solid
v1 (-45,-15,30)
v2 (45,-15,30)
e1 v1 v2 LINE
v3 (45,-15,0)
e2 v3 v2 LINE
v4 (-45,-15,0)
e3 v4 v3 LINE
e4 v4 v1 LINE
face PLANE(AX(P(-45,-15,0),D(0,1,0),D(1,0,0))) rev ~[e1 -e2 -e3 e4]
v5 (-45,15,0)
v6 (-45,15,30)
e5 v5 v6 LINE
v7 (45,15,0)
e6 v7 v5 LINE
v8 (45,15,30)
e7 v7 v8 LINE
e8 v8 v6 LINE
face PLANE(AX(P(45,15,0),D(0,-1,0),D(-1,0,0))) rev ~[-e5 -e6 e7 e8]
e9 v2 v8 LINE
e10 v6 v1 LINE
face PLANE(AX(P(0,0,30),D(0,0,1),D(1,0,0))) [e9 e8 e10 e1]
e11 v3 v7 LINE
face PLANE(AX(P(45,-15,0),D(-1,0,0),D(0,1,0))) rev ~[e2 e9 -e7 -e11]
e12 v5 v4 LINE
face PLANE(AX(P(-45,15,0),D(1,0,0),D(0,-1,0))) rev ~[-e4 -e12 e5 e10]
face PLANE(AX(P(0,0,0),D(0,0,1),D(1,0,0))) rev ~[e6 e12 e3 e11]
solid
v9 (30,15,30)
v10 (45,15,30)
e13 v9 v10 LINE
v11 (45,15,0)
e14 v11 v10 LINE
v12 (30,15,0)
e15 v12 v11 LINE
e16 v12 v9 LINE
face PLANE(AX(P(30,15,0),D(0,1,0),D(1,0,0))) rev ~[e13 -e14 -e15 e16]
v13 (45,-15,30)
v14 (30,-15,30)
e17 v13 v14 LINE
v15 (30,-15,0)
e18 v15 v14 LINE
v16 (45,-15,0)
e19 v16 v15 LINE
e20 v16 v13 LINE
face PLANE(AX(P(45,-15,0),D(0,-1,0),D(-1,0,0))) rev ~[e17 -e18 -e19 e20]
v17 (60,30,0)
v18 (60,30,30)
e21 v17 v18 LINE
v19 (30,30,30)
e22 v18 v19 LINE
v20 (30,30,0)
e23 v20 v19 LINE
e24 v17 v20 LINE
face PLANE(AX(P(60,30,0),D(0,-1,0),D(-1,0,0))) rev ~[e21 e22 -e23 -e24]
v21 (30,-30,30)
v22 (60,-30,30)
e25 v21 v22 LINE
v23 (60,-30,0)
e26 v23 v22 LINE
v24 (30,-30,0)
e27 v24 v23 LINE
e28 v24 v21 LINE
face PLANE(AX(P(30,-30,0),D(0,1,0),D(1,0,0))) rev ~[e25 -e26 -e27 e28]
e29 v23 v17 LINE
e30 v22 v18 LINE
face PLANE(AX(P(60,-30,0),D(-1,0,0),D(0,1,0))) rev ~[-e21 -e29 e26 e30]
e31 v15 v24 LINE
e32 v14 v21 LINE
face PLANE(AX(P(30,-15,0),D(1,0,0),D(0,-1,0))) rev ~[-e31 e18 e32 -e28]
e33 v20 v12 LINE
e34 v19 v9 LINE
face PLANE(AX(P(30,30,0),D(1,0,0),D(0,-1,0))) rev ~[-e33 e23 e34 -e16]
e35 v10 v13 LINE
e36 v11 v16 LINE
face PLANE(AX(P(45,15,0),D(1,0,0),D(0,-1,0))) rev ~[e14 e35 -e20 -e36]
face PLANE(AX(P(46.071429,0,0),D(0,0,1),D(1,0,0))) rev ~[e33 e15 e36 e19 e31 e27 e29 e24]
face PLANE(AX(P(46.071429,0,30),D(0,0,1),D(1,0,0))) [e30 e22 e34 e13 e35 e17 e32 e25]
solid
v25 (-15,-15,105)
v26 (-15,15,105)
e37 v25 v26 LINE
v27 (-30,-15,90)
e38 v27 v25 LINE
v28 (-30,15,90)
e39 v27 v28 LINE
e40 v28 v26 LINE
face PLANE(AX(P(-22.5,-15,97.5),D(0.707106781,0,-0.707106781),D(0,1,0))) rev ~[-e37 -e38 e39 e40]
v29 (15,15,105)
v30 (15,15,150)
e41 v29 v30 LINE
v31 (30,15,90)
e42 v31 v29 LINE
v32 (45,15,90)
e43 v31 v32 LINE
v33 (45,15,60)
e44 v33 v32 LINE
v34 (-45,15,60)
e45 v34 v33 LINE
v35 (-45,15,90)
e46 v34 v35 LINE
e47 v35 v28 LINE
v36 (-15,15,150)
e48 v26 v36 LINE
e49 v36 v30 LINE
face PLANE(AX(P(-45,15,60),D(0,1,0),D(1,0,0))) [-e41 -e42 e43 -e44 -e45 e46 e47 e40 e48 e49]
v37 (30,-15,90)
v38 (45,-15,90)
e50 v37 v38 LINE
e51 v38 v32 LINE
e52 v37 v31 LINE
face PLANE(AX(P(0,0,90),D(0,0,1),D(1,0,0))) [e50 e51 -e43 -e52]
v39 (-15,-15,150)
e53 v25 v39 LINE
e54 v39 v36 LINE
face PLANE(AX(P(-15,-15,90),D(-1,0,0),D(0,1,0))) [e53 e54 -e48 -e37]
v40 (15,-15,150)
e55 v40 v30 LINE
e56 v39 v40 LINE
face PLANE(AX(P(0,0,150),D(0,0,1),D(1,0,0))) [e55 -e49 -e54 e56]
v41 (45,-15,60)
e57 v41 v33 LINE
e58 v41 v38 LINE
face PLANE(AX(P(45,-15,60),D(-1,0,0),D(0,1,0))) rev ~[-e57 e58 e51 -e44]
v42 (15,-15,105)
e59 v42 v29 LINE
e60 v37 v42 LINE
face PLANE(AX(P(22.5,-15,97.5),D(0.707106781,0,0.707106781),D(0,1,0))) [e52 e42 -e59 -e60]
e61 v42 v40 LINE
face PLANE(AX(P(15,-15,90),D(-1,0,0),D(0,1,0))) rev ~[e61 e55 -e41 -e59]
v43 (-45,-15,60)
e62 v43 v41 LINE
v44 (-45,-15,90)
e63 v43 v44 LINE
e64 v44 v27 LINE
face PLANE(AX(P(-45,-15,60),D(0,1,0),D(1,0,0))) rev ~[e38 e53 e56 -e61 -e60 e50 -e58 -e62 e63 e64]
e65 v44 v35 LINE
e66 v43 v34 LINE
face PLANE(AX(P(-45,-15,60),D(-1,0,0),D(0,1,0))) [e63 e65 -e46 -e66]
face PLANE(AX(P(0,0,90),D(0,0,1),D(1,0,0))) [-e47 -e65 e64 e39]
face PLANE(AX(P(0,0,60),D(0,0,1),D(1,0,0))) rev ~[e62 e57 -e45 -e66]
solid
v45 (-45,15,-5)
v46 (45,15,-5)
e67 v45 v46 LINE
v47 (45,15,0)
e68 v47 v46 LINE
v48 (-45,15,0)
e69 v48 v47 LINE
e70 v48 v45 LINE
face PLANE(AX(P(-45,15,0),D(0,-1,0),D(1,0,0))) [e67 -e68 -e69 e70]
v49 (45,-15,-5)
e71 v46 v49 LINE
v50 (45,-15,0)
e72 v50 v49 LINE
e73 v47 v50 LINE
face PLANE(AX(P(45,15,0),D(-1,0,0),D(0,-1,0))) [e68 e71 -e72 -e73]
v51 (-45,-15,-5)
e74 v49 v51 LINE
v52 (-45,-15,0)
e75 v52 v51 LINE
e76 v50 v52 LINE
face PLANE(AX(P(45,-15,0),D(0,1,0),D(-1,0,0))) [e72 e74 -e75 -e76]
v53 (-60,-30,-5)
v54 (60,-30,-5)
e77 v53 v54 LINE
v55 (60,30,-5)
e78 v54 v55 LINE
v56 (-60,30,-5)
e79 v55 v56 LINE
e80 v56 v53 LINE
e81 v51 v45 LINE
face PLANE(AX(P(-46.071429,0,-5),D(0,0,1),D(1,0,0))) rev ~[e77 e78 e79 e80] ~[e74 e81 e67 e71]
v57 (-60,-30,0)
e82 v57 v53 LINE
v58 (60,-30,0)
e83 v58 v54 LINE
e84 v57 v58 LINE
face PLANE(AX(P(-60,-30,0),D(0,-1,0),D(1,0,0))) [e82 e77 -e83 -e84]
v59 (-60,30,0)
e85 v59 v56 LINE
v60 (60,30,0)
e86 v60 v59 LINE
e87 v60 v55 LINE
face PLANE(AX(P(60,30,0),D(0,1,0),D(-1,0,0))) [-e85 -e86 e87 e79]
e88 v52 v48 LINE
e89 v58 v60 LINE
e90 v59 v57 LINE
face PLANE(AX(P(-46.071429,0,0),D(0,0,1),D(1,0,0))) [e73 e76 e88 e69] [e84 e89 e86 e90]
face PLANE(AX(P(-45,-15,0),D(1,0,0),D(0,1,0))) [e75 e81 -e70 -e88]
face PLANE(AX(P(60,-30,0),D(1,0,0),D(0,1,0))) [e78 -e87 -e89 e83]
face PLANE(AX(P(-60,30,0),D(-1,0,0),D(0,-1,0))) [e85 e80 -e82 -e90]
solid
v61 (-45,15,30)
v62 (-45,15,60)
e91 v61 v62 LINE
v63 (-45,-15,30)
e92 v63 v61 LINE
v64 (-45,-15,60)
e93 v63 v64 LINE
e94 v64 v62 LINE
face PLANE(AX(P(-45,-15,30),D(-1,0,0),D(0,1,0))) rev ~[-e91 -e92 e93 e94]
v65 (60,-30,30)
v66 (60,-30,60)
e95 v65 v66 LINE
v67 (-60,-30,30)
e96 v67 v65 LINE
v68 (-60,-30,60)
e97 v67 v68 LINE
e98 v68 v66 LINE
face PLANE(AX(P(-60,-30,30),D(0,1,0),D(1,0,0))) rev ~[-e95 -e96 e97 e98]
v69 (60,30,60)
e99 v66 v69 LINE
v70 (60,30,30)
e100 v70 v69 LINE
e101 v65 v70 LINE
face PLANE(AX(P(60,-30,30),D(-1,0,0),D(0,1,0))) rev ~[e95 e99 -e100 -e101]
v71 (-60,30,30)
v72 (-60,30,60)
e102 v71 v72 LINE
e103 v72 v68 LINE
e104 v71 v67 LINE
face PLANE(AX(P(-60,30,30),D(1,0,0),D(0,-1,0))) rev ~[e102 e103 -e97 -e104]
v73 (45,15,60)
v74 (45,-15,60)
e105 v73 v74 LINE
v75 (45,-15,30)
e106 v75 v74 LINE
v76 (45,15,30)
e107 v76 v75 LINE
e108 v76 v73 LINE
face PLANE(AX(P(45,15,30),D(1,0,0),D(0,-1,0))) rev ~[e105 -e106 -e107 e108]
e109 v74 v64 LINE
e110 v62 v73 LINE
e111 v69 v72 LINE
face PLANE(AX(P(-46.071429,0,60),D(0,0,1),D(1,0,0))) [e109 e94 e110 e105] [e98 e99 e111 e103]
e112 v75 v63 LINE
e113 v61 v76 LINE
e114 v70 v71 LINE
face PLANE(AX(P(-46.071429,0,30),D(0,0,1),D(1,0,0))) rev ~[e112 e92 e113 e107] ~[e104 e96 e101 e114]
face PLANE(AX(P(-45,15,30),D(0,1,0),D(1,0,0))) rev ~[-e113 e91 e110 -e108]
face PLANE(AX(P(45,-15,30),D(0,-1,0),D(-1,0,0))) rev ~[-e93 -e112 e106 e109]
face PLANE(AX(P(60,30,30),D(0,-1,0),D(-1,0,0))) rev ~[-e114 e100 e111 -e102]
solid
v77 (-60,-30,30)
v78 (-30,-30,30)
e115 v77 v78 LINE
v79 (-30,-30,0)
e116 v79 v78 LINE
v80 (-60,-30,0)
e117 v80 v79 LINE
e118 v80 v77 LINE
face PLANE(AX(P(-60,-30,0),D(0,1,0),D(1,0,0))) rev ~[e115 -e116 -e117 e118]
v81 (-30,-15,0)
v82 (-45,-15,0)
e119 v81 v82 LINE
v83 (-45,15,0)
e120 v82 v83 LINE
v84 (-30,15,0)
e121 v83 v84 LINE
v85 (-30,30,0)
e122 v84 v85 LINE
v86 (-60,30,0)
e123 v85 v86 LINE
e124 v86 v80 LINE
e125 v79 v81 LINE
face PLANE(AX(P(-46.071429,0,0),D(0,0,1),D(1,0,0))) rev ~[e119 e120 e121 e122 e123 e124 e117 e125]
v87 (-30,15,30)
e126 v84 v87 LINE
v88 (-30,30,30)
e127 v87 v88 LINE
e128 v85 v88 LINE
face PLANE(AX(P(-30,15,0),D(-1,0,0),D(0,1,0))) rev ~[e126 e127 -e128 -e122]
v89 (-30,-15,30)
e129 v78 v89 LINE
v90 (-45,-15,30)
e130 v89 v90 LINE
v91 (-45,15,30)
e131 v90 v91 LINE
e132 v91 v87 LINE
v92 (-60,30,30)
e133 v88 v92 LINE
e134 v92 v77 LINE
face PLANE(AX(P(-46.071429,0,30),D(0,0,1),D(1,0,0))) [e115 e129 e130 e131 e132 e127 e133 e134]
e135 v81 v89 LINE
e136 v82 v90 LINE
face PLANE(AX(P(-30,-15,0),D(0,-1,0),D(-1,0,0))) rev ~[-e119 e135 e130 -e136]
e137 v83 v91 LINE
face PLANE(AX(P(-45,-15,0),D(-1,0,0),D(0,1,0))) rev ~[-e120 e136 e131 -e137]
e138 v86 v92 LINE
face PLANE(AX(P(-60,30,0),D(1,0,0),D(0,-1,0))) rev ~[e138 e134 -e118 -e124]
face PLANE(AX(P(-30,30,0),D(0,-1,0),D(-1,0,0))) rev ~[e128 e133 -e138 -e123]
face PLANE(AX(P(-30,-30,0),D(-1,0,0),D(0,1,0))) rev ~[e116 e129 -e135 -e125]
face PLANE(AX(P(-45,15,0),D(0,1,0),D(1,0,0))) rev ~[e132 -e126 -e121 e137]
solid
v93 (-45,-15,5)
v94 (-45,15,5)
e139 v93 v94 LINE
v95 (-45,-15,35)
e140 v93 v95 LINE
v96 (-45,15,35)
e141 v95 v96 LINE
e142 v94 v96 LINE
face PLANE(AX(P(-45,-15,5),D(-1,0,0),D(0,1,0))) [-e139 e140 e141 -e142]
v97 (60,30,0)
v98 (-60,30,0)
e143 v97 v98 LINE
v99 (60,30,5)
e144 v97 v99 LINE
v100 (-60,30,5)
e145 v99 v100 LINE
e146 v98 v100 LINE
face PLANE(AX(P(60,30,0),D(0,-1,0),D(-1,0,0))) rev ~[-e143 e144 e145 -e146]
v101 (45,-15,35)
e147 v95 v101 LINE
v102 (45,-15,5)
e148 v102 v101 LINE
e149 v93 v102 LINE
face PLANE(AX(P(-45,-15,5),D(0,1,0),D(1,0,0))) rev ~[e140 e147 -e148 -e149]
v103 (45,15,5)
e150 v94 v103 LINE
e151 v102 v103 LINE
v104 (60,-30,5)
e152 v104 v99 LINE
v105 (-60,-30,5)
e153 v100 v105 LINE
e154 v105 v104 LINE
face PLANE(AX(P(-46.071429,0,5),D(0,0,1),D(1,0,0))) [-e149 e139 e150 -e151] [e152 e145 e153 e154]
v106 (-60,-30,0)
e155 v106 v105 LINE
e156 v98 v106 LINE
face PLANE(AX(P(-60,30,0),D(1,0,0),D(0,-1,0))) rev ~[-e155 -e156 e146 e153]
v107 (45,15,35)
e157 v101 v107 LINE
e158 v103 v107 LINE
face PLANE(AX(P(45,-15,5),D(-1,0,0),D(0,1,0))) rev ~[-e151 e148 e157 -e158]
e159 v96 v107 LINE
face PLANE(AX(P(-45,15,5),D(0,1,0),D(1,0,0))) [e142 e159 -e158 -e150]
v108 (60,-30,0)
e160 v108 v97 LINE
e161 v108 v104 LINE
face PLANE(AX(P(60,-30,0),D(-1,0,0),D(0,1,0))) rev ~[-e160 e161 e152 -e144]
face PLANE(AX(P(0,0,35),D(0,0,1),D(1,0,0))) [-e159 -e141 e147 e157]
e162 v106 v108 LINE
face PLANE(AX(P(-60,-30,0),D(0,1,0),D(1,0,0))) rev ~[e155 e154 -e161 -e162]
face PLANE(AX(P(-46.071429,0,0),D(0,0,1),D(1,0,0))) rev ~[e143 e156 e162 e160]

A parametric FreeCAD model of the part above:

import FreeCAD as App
import Part
import Sketcher

V = App.Vector
Q = App.Units.Quantity


def edges_at(feature, points):
    """Names of the edges that pass closest to the given points."""
    edges = feature.Shape.Edges
    near = lambda p: min(range(len(edges)), key=lambda i: edges[i].distToShape(Part.Vertex(*p))[0])
    return sorted({f"Edge{near(p) + 1}" for p in points})


def add_polygon(sketch, points):
    """Adds a closed chain of lines whose ends are joined by coincident constraints."""
    first, n = sketch.GeometryCount, len(points)
    for a, b in zip(points, points[1:] + points[:1]):
        sketch.addGeometry(Part.LineSegment(App.Vector(*a, 0), App.Vector(*b, 0)), False)
    for i in range(n):
        sketch.addConstraint(Sketcher.Constraint("Coincident", first + i, 2, first + (i + 1) % n, 1))

doc = App.newDocument("Part")
body = doc.addObject("PartDesign::Body", "Body")

# Sketch on XY plane
sketch1 = doc.addObject("Sketcher::SketchObject", "Sketch")
body.addObject(sketch1)
sketch1.AttachmentSupport = (doc.XY_Plane, [""])
sketch1.MapMode = "FlatFace"
add_polygon(sketch1, [(45, -15), (45, 15), (-45, 15), (-45, -15)])  # lines 0-3
sketch1.addConstraint([
    Sketcher.Constraint("Vertical", 0),
    Sketcher.Constraint("Horizontal", 1),
    Sketcher.Constraint("Vertical", 2),
    Sketcher.Constraint("Horizontal", 3),
    Sketcher.Constraint("Symmetric", 0, 2, 2, 2, -1, 1),
    Sketcher.Constraint("DistanceX", 1, 2, 1, 1, Q("90 mm")),
    Sketcher.Constraint("DistanceY", 0, 1, 0, 2, Q("30 mm")),
])
pad1 = doc.addObject("PartDesign::Pad", "Pad")
body.addObject(pad1)
pad1.Profile = sketch1
pad1.Length = 30
body2 = doc.addObject("PartDesign::Body", "Body001")

# Sketch on XY plane
sketch2 = doc.addObject("Sketcher::SketchObject", "Sketch001")
body2.addObject(sketch2)
sketch2.AttachmentSupport = (doc.getObject("XY_Plane001"), [""])
sketch2.MapMode = "FlatFace"
add_polygon(sketch2, [(-60, 30), (-60, -30), (60, -30), (60, 30)])  # lines 0-3
add_polygon(sketch2, [(-45, 15), (45, 15), (45, -15), (-45, -15)])  # lines 4-7
sketch2.addConstraint([
    Sketcher.Constraint("Vertical", 0),
    Sketcher.Constraint("Horizontal", 1),
    Sketcher.Constraint("Vertical", 2),
    Sketcher.Constraint("Horizontal", 3),
    Sketcher.Constraint("Horizontal", 4),
    Sketcher.Constraint("Vertical", 5),
    Sketcher.Constraint("Horizontal", 6),
    Sketcher.Constraint("Vertical", 7),
    Sketcher.Constraint("Symmetric", 0, 2, 2, 2, -1, 1),
    Sketcher.Constraint("Symmetric", 4, 2, 6, 2, -1, 1),
    Sketcher.Constraint("DistanceX", 1, 1, 1, 2, Q("120 mm")),
    Sketcher.Constraint("DistanceX", 4, 1, 4, 2, Q("90 mm")),
    Sketcher.Constraint("DistanceY", 0, 2, 0, 1, Q("60 mm")),
    Sketcher.Constraint("DistanceY", 5, 2, 5, 1, Q("30 mm")),
])
pad2 = doc.addObject("PartDesign::Pad", "Pad001")
body2.addObject(pad2)
pad2.Profile = sketch2
pad2.Length = 5
pad2.Reversed = True
body3 = doc.addObject("PartDesign::Body", "Body002")

# Sketch on XY plane
sketch3 = doc.addObject("Sketcher::SketchObject", "Sketch002")
body3.addObject(sketch3)
sketch3.AttachmentSupport = (doc.getObject("XY_Plane002"), [""])
sketch3.MapMode = "FlatFace"
add_polygon(sketch3, [(30, 15), (45, 15), (45, -15), (30, -15), (30, -30), (60, -30), (60, 30), (30, 30)])  # lines 0-7
sketch3.addConstraint([
    Sketcher.Constraint("Horizontal", 0),
    Sketcher.Constraint("Vertical", 1),
    Sketcher.Constraint("Horizontal", 2),
    Sketcher.Constraint("Vertical", 3),
    Sketcher.Constraint("Horizontal", 4),
    Sketcher.Constraint("Vertical", 5),
    Sketcher.Constraint("Horizontal", 6),
    Sketcher.Constraint("Vertical", 7),
    Sketcher.Constraint("Symmetric", 3, 2, 6, 2, -1),
    Sketcher.Constraint("Equal", 6, 1),
    Sketcher.Constraint("Equal", 2, 3),
    Sketcher.Constraint("Equal", 3, 7),
    Sketcher.Constraint("DistanceX", 0, 1, 0, 2, Q("15 mm")),
    Sketcher.Constraint("DistanceX", 4, 1, 4, 2, Q("30 mm")),
    Sketcher.Constraint("DistanceX", -1, 1, 0, 2, Q("45 mm")),
])
pad3 = doc.addObject("PartDesign::Pad", "Pad002")
body3.addObject(pad3)
pad3.Profile = sketch3
pad3.Length = 30
body4 = doc.addObject("PartDesign::Body", "Body003")

# Sketch on XY plane
sketch4 = doc.addObject("Sketcher::SketchObject", "Sketch003")
body4.addObject(sketch4)
sketch4.AttachmentSupport = (doc.getObject("XY_Plane003"), [""])
sketch4.MapMode = "FlatFace"
add_polygon(sketch4, [(-45, 15), (-30, 15), (-30, 30), (-60, 30), (-60, -30), (-30, -30), (-30, -15), (-45, -15)])  # lines 0-7
sketch4.addConstraint([
    Sketcher.Constraint("Horizontal", 0),
    Sketcher.Constraint("Vertical", 1),
    Sketcher.Constraint("Horizontal", 2),
    Sketcher.Constraint("Vertical", 3),
    Sketcher.Constraint("Horizontal", 4),
    Sketcher.Constraint("Vertical", 5),
    Sketcher.Constraint("Horizontal", 6),
    Sketcher.Constraint("Vertical", 7),
    Sketcher.Constraint("Symmetric", 1, 2, 4, 2, -1),
    Sketcher.Constraint("Equal", 6, 1),
    Sketcher.Constraint("Equal", 1, 5),
    Sketcher.Constraint("Equal", 4, 7),
    Sketcher.Constraint("DistanceX", 0, 1, 0, 2, Q("15 mm")),
    Sketcher.Constraint("DistanceX", 2, 2, 2, 1, Q("30 mm")),
    Sketcher.Constraint("DistanceX", 0, 2, -1, 1, Q("30 mm")),
])
pad4 = doc.addObject("PartDesign::Pad", "Pad003")
body4.addObject(pad4)
pad4.Profile = sketch4
pad4.Length = 30
body5 = doc.addObject("PartDesign::Body", "Body004")

# Sketch on XY plane
sketch5 = doc.addObject("Sketcher::SketchObject", "Sketch004")
body5.addObject(sketch5)
sketch5.AttachmentSupport = (doc.getObject("XY_Plane004"), [""])
sketch5.MapMode = "FlatFace"
sketch5.AttachmentOffset = App.Placement(V(0, 0, 30), App.Rotation())
add_polygon(sketch5, [(-60, 30), (-60, -30), (60, -30), (60, 30)])  # lines 0-3
add_polygon(sketch5, [(-45, -15), (-45, 15), (45, 15), (45, -15)])  # lines 4-7
sketch5.addConstraint([
    Sketcher.Constraint("Vertical", 0),
    Sketcher.Constraint("Horizontal", 1),
    Sketcher.Constraint("Vertical", 2),
    Sketcher.Constraint("Horizontal", 3),
    Sketcher.Constraint("Vertical", 4),
    Sketcher.Constraint("Horizontal", 5),
    Sketcher.Constraint("Vertical", 6),
    Sketcher.Constraint("Horizontal", 7),
    Sketcher.Constraint("Symmetric", 0, 2, 2, 2, -1, 1),
    Sketcher.Constraint("Symmetric", 4, 2, 6, 2, -1, 1),
    Sketcher.Constraint("DistanceX", 1, 1, 1, 2, Q("120 mm")),
    Sketcher.Constraint("DistanceX", 5, 1, 5, 2, Q("90 mm")),
    Sketcher.Constraint("DistanceY", 0, 2, 0, 1, Q("60 mm")),
    Sketcher.Constraint("DistanceY", 4, 1, 4, 2, Q("30 mm")),
])
pad5 = doc.addObject("PartDesign::Pad", "Pad004")
body5.addObject(pad5)
pad5.Profile = sketch5
pad5.Length = 30
body6 = doc.addObject("PartDesign::Body", "Body005")

# Sketch on XY plane
sketch6 = doc.addObject("Sketcher::SketchObject", "Sketch005")
body6.addObject(sketch6)
sketch6.AttachmentSupport = (doc.getObject("XY_Plane005"), [""])
sketch6.MapMode = "FlatFace"
sketch6.AttachmentOffset = App.Placement(V(0, 0, 60), App.Rotation())
add_polygon(sketch6, [(-45, 15), (-45, -15), (45, -15), (45, 15)])  # lines 0-3
sketch6.addConstraint([
    Sketcher.Constraint("Vertical", 0),
    Sketcher.Constraint("Horizontal", 1),
    Sketcher.Constraint("Vertical", 2),
    Sketcher.Constraint("Horizontal", 3),
    Sketcher.Constraint("Symmetric", 0, 2, 2, 2, -1, 1),
    Sketcher.Constraint("DistanceX", 1, 1, 1, 2, Q("90 mm")),
    Sketcher.Constraint("DistanceY", 0, 2, 0, 1, Q("30 mm")),
])
pad6 = doc.addObject("PartDesign::Pad", "Pad005")
body6.addObject(pad6)
pad6.Profile = sketch6
pad6.Length = 30

# Sketch on XY plane
sketch7 = doc.addObject("Sketcher::SketchObject", "Sketch006")
body6.addObject(sketch7)
sketch7.AttachmentSupport = (doc.getObject("XY_Plane005"), [""])
sketch7.MapMode = "FlatFace"
sketch7.AttachmentOffset = App.Placement(V(0, 0, 90), App.Rotation())
add_polygon(sketch7, [(-15, 15), (-15, -15), (15, -15), (15, 15)])  # lines 0-3
sketch7.addConstraint([
    Sketcher.Constraint("Vertical", 0),
    Sketcher.Constraint("Horizontal", 1),
    Sketcher.Constraint("Vertical", 2),
    Sketcher.Constraint("Horizontal", 3),
    Sketcher.Constraint("Symmetric", 0, 2, 2, 2, -1, 1),
    Sketcher.Constraint("Equal", 3, 0),
    Sketcher.Constraint("DistanceX", 1, 1, 1, 2, Q("30 mm")),
])
pad7 = doc.addObject("PartDesign::Pad", "Pad006")
body6.addObject(pad7)
pad7.Profile = sketch7
pad7.Length = 60
doc.recompute()

chamfer = doc.addObject("PartDesign::Chamfer", "Chamfer")
body6.addObject(chamfer)
chamfer.Base = (pad7, edges_at(pad7, [(15, 0, 90), (-15, 0, 90)]))
chamfer.Size = 15
body7 = doc.addObject("PartDesign::Body", "Body006")

# Sketch on XY plane
sketch8 = doc.addObject("Sketcher::SketchObject", "Sketch007")
body7.addObject(sketch8)
sketch8.AttachmentSupport = (doc.getObject("XY_Plane006"), [""])
sketch8.MapMode = "FlatFace"
add_polygon(sketch8, [(60, -30), (60, 30), (-60, 30), (-60, -30)])  # lines 0-3
sketch8.addConstraint([
    Sketcher.Constraint("Vertical", 0),
    Sketcher.Constraint("Horizontal", 1),
    Sketcher.Constraint("Vertical", 2),
    Sketcher.Constraint("Horizontal", 3),
    Sketcher.Constraint("Symmetric", 0, 2, 2, 2, -1, 1),
    Sketcher.Constraint("DistanceX", 1, 2, 1, 1, Q("120 mm")),
    Sketcher.Constraint("DistanceY", 0, 1, 0, 2, Q("60 mm")),
])
pad8 = doc.addObject("PartDesign::Pad", "Pad007")
body7.addObject(pad8)
pad8.Profile = sketch8
pad8.Length = 5

# Sketch on XY plane
sketch9 = doc.addObject("Sketcher::SketchObject", "Sketch008")
body7.addObject(sketch9)
sketch9.AttachmentSupport = (doc.getObject("XY_Plane006"), [""])
sketch9.MapMode = "FlatFace"
sketch9.AttachmentOffset = App.Placement(V(0, 0, 5), App.Rotation())
add_polygon(sketch9, [(-45, 15), (-45, -15), (45, -15), (45, 15)])  # lines 0-3
sketch9.addConstraint([
    Sketcher.Constraint("Vertical", 0),
    Sketcher.Constraint("Horizontal", 1),
    Sketcher.Constraint("Vertical", 2),
    Sketcher.Constraint("Horizontal", 3),
    Sketcher.Constraint("Symmetric", 0, 2, 2, 2, -1, 1),
    Sketcher.Constraint("DistanceX", 1, 1, 1, 2, Q("90 mm")),
    Sketcher.Constraint("DistanceY", 0, 2, 0, 1, Q("30 mm")),
])
pad9 = doc.addObject("PartDesign::Pad", "Pad008")
body7.addObject(pad9)
pad9.Profile = sketch9
pad9.Length = 30

doc.recompute()
